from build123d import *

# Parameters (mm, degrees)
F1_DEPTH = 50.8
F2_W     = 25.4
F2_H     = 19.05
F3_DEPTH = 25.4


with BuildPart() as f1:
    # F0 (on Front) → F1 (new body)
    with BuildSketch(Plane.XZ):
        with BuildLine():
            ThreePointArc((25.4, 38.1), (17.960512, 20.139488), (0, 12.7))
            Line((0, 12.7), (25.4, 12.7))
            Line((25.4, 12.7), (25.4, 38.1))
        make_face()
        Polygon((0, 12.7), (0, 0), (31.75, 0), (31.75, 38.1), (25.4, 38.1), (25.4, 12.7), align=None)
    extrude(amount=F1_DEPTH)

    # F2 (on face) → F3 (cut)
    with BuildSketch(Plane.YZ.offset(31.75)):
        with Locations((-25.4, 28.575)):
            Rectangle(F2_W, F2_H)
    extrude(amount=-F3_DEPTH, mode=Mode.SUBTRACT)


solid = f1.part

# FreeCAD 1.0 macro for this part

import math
import FreeCAD as App
import Part
import Sketcher

V = App.Vector
Q = App.Units.Quantity

doc = App.newDocument("Part")
body = doc.addObject("PartDesign::Body", "Body")

# Sketch on XZ plane
sketch1 = body.newObject("Sketcher::SketchObject", "Sketch")
sketch1.AttachmentSupport = (doc.getObject("XZ_Plane"), [""])
sketch1.MapMode = "FlatFace"
sketch1.addGeometry(Part.ArcOfCircle(Part.Circle(V(0, 38, 0), V(0, 0, 1), 25), math.radians(-90), math.radians(0)), False)
sketch1.addGeometry(Part.LineSegment(V(0, 13, 0), V(0, 0, 0)), False)
sketch1.addGeometry(Part.LineSegment(V(0, 0, 0), V(32, 0, 0)), False)
sketch1.addGeometry(Part.LineSegment(V(32, 0, 0), V(32, 38, 0)), False)
sketch1.addGeometry(Part.LineSegment(V(32, 38, 0), V(25, 38, 0)), False)
sketch1.addConstraint(Sketcher.Constraint("Coincident", 0, 1, 1, 1))
sketch1.addConstraint(Sketcher.Constraint("Coincident", 1, 2, 2, 1))
sketch1.addConstraint(Sketcher.Constraint("Coincident", 2, 2, 3, 1))
sketch1.addConstraint(Sketcher.Constraint("Coincident", 3, 2, 4, 1))
sketch1.addConstraint(Sketcher.Constraint("Coincident", 4, 2, 0, 2))
sketch1.addConstraint(Sketcher.Constraint("Vertical", 1))
sketch1.addConstraint(Sketcher.Constraint("Horizontal", 2))
sketch1.addConstraint(Sketcher.Constraint("Vertical", 3))
sketch1.addConstraint(Sketcher.Constraint("Horizontal", 4))
sketch1.addConstraint(Sketcher.Constraint("Coincident", 1, 2, -1, 1))
sketch1.addConstraint(Sketcher.Constraint("PointOnObject", 0, 3, -2))
sketch1.addConstraint(Sketcher.Constraint("Horizontal", 0, 3, 3, 2))
sketch1.addConstraint(Sketcher.Constraint("Radius", 0, Q("1 in")))
sketch1.addConstraint(Sketcher.Constraint("DistanceY", 1, 2, 1, 1, Q("0.5 in")))
sketch1.addConstraint(Sketcher.Constraint("DistanceX", 2, 1, 2, 2, Q("1.25 in")))
pad1 = body.newObject("PartDesign::Pad", "Pad")
pad1.Profile = sketch1
pad1.Length = Q("2 in")

# Sketch on YZ plane
sketch2 = body.newObject("Sketcher::SketchObject", "Sketch001")
sketch2.AttachmentSupport = (doc.getObject("YZ_Plane"), [""])
sketch2.MapMode = "FlatFace"
sketch2.AttachmentOffset = App.Placement(V(0, 0, 1.25 * 25.4), App.Rotation())
sketch2.addGeometry(Part.LineSegment(V(-38, 38, 0), V(-38, 19, 0)), False)
sketch2.addGeometry(Part.LineSegment(V(-38, 19, 0), V(-13, 19, 0)), False)
sketch2.addGeometry(Part.LineSegment(V(-13, 19, 0), V(-13, 38, 0)), False)
sketch2.addGeometry(Part.LineSegment(V(-13, 38, 0), V(-38, 38, 0)), False)
sketch2.addConstraint(Sketcher.Constraint("Coincident", 0, 2, 1, 1))
sketch2.addConstraint(Sketcher.Constraint("Coincident", 1, 2, 2, 1))
sketch2.addConstraint(Sketcher.Constraint("Coincident", 2, 2, 3, 1))
sketch2.addConstraint(Sketcher.Constraint("Coincident", 3, 2, 0, 1))
sketch2.addConstraint(Sketcher.Constraint("Vertical", 0))
sketch2.addConstraint(Sketcher.Constraint("Horizontal", 1))
sketch2.addConstraint(Sketcher.Constraint("Vertical", 2))
sketch2.addConstraint(Sketcher.Constraint("Horizontal", 3))
sketch2.addConstraint(Sketcher.Constraint("DistanceX", 1, 1, 1, 2, Q("1 in")))
sketch2.addConstraint(Sketcher.Constraint("DistanceY", 0, 2, 0, 1, Q("0.75 in")))
sketch2.addConstraint(Sketcher.Constraint("DistanceX", 0, 2, -1, 1, Q("1.5 in")))
sketch2.addConstraint(Sketcher.Constraint("DistanceY", -1, 1, 2, 2, Q("1.5 in")))
pocket1 = body.newObject("PartDesign::Pocket", "Pocket")
pocket1.Profile = sketch2
pocket1.Length = Q("1 in")

doc.recompute()
